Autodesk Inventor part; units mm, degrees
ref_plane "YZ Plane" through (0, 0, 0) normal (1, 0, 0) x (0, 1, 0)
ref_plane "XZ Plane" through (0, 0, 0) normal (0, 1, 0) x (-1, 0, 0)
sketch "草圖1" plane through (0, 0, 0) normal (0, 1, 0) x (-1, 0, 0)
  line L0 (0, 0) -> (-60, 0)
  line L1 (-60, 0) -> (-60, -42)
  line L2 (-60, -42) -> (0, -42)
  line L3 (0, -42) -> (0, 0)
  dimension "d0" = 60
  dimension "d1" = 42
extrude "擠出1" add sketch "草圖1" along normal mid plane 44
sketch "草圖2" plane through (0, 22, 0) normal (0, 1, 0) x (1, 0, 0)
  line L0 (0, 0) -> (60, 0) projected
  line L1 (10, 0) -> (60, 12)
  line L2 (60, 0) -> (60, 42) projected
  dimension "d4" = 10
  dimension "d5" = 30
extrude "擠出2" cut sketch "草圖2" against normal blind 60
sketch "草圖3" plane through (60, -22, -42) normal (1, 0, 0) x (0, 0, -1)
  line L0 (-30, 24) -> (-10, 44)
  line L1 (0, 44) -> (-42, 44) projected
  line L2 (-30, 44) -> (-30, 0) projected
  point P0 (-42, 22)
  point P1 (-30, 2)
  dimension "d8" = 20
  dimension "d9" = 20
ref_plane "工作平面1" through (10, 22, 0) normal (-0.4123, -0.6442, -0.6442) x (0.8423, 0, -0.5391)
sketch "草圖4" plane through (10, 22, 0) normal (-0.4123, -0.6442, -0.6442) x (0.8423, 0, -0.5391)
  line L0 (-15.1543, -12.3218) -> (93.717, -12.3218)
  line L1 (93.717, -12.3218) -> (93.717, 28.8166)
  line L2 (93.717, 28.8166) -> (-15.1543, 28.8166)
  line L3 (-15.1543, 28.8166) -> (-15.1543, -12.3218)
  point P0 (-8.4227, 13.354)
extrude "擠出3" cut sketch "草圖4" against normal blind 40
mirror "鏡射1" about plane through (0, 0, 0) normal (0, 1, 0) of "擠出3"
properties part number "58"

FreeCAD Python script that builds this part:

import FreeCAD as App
import Part
import Sketcher
from FreeCAD import Vector
Q = App.Units.Quantity


def add_polygon(sketch, points):
    """Adds a closed chain of lines whose ends are joined by coincident constraints."""
    first, n = sketch.GeometryCount, len(points)
    for a, b in zip(points, points[1:] + points[:1]):
        sketch.addGeometry(Part.LineSegment(App.Vector(*a, 0), App.Vector(*b, 0)), False)
    for i in range(n):
        sketch.addConstraint(Sketcher.Constraint("Coincident", first + i, 2, first + (i + 1) % n, 1))

doc = App.newDocument("Part")
body = doc.addObject("PartDesign::Body", "Body")

# Sketch on XZ plane
sketch1 = body.newObject("Sketcher::SketchObject", "Sketch")
sketch1.AttachmentSupport = (doc.getObject("XZ_Plane"), [""])
sketch1.MapMode = "FlatFace"
add_polygon(sketch1, [(0, -42), (0, 0), (60, 0), (60, -42)])  # lines 0-3
sketch1.addConstraint([
    Sketcher.Constraint("Vertical", 0),
    Sketcher.Constraint("Horizontal", 1),
    Sketcher.Constraint("Vertical", 2),
    Sketcher.Constraint("Horizontal", 3),
    Sketcher.Constraint("Coincident", 0, 2, -1, 1),
    Sketcher.Constraint("DistanceX", 1, 1, 1, 2, Q("60 mm")),
    Sketcher.Constraint("DistanceY", 0, 1, 0, 2, Q("42 mm")),
])
pad1 = body.newObject("PartDesign::Pad", "Pad")
pad1.Profile = sketch1
pad1.Length = 44
pad1.Midplane = True

# Sketch on XZ plane
sketch2 = body.newObject("Sketcher::SketchObject", "Sketch001")
sketch2.AttachmentSupport = (doc.getObject("XZ_Plane"), [""])
sketch2.MapMode = "FlatFace"
sketch2.AttachmentOffset = App.Placement(Vector(0, 0, -22), App.Rotation())
add_polygon(sketch2, [(60, -12), (10, 0), (60, 0)])  # lines 0-2
sketch2.addConstraint([
    Sketcher.Constraint("Horizontal", 1),
    Sketcher.Constraint("Vertical", 2),
    Sketcher.Constraint("PointOnObject", 0, 2, -1),
    Sketcher.Constraint("DistanceX", -1, 1, 0, 2, Q("10 mm")),
    Sketcher.Constraint("DistanceX", 1, 1, 1, 2, Q("50 mm")),
    Sketcher.Constraint("DistanceY", 2, 2, 2, 1, Q("12 mm")),
])
pocket1 = body.newObject("PartDesign::Pocket", "Pocket")
pocket1.Profile = sketch2
pocket1.Length = 60
pocket1.Reversed = True

# Sketch on an angled plane
sketch3 = body.newObject("Sketcher::SketchObject", "Sketch002")
sketch3.Placement = App.Placement(Vector(10, 22, 0), App.Rotation(Vector(0.842261958, 0.000005108, -0.539068451), Vector(0.347274908, -0.764851271, 0.542588861), Vector(-0.412304418, -0.644206903, -0.644206903), "ZXY"))
add_polygon(sketch3, [(-15, 29), (-15, -12), (94, -12), (94, 29)])  # lines 0-3
sketch3.addConstraint([
    Sketcher.Constraint("Vertical", 0),
    Sketcher.Constraint("Horizontal", 1),
    Sketcher.Constraint("Vertical", 2),
    Sketcher.Constraint("Horizontal", 3),
    Sketcher.Constraint("DistanceX", 1, 1, 1, 2, Q("108.8713 mm")),
    Sketcher.Constraint("DistanceY", 0, 2, 0, 1, Q("41.1384 mm")),
    Sketcher.Constraint("DistanceX", -1, 1, 1, 2, Q("93.717 mm")),
    Sketcher.Constraint("DistanceY", 0, 2, -1, 1, Q("12.3218 mm")),
])
pocket2 = body.newObject("PartDesign::Pocket", "Pocket001")
pocket2.Profile = sketch3
pocket2.Length = 40
doc.recompute()

mirrored = body.newObject("PartDesign::Mirrored", "Mirrored")
mirrored.Originals = [pocket2]
mirrored.MirrorPlane = (doc.getObject("XZ_Plane"), [""])
body.Tip = mirrored

doc.recompute()
